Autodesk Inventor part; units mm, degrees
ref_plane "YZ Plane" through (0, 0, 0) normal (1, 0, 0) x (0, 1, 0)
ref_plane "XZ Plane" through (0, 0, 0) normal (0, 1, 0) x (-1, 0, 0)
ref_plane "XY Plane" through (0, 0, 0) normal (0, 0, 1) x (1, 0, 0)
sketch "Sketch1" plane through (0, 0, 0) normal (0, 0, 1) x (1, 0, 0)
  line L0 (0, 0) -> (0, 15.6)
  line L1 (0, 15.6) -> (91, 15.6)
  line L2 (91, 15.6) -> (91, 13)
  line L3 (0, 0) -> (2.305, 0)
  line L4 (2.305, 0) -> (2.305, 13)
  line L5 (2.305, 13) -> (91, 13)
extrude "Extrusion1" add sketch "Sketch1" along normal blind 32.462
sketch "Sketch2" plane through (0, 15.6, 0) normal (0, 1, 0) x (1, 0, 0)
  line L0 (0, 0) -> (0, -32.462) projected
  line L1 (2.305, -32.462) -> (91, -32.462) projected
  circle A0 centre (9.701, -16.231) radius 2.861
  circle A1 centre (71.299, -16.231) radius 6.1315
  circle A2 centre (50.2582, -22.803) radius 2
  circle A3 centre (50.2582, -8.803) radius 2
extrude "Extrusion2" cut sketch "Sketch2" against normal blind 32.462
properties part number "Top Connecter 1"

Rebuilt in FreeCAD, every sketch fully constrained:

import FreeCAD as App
import Part
import Sketcher

V = App.Vector
Q = App.Units.Quantity

doc = App.newDocument("Part")
body = doc.addObject("PartDesign::Body", "Body")

# Sketch on XY plane
sketch1 = body.newObject("Sketcher::SketchObject", "Sketch")
sketch1.AttachmentSupport = (doc.getObject("XY_Plane"), [""])
sketch1.MapMode = "FlatFace"
sketch1.addGeometry([
    Part.LineSegment(V(0, 15.6, 0), V(0, 0, 0)),  # 0
    Part.LineSegment(V(0, 0, 0), V(2.305, 0, 0)),  # 1
    Part.LineSegment(V(2.305, 0, 0), V(2.305, 13, 0)),  # 2
    Part.LineSegment(V(2.305, 13, 0), V(91, 13, 0)),  # 3
    Part.LineSegment(V(91, 13, 0), V(91, 15.6, 0)),  # 4
    Part.LineSegment(V(91, 15.6, 0), V(0, 15.6, 0)),  # 5
], False)
sketch1.addConstraint([
    Sketcher.Constraint("Coincident", 0, 2, 1, 1),
    Sketcher.Constraint("Coincident", 1, 2, 2, 1),
    Sketcher.Constraint("Coincident", 2, 2, 3, 1),
    Sketcher.Constraint("Coincident", 3, 2, 4, 1),
    Sketcher.Constraint("Coincident", 4, 2, 5, 1),
    Sketcher.Constraint("Coincident", 5, 2, 0, 1),
    Sketcher.Constraint("Vertical", 0),
    Sketcher.Constraint("Horizontal", 1),
    Sketcher.Constraint("Vertical", 2),
    Sketcher.Constraint("Horizontal", 3),
    Sketcher.Constraint("Vertical", 4),
    Sketcher.Constraint("Horizontal", 5),
    Sketcher.Constraint("Coincident", 0, 2, -1, 1),
    Sketcher.Constraint("DistanceX", 5, 2, 5, 1, Q("91 mm")),
    Sketcher.Constraint("DistanceY", 2, 1, 2, 2, Q("13 mm")),
    Sketcher.Constraint("DistanceY", 0, 2, 0, 1, Q("15.6 mm")),
    Sketcher.Constraint("DistanceX", 1, 1, 1, 2, Q("2.305 mm")),
])
pad1 = body.newObject("PartDesign::Pad", "Pad")
pad1.Profile = sketch1
pad1.Length = 32.462

# Sketch on XZ plane
sketch2 = body.newObject("Sketcher::SketchObject", "Sketch001")
sketch2.AttachmentSupport = (doc.getObject("XZ_Plane"), [""])
sketch2.MapMode = "FlatFace"
sketch2.AttachmentOffset = App.Placement(V(0, 0, -15.6), App.Rotation())
sketch2.addGeometry([
    Part.Circle(V(9.701, 16.231, 0), V(0, 0, 1), 2.861),
    Part.Circle(V(71.299, 16.231, 0), V(0, 0, 1), 6.1315),
    Part.Circle(V(50.2582, 22.803, 0), V(0, 0, 1), 2),
    Part.Circle(V(50.2582, 8.803, 0), V(0, 0, 1), 2),
], False)
sketch2.addConstraint([
    Sketcher.Constraint("Equal", 2, 3),
    Sketcher.Constraint("Horizontal", 0, 3, 1, 3),
    Sketcher.Constraint("Vertical", 2, 3, 3, 3),
    Sketcher.Constraint("Diameter", 2, Q("4 mm")),
    Sketcher.Constraint("Diameter", 0, Q("5.722 mm")),
    Sketcher.Constraint("Diameter", 1, Q("12.263 mm")),
    Sketcher.Constraint("DistanceY", 3, 3, 2, 3, Q("14 mm")),
    Sketcher.Constraint("DistanceX", -1, 1, 0, 3, Q("9.701 mm")),
    Sketcher.Constraint("DistanceY", -1, 1, 0, 3, Q("16.231 mm")),
    Sketcher.Constraint("DistanceX", -1, 1, 1, 3, Q("71.299 mm")),
    Sketcher.Constraint("DistanceY", -1, 1, 2, 3, Q("22.803 mm")),
    Sketcher.Constraint("DistanceX", -1, 1, 2, 3, Q("50.2582 mm")),
])
pocket1 = body.newObject("PartDesign::Pocket", "Pocket")
pocket1.Profile = sketch2
pocket1.Length = 32.462
pocket1.Reversed = True

doc.recompute()
